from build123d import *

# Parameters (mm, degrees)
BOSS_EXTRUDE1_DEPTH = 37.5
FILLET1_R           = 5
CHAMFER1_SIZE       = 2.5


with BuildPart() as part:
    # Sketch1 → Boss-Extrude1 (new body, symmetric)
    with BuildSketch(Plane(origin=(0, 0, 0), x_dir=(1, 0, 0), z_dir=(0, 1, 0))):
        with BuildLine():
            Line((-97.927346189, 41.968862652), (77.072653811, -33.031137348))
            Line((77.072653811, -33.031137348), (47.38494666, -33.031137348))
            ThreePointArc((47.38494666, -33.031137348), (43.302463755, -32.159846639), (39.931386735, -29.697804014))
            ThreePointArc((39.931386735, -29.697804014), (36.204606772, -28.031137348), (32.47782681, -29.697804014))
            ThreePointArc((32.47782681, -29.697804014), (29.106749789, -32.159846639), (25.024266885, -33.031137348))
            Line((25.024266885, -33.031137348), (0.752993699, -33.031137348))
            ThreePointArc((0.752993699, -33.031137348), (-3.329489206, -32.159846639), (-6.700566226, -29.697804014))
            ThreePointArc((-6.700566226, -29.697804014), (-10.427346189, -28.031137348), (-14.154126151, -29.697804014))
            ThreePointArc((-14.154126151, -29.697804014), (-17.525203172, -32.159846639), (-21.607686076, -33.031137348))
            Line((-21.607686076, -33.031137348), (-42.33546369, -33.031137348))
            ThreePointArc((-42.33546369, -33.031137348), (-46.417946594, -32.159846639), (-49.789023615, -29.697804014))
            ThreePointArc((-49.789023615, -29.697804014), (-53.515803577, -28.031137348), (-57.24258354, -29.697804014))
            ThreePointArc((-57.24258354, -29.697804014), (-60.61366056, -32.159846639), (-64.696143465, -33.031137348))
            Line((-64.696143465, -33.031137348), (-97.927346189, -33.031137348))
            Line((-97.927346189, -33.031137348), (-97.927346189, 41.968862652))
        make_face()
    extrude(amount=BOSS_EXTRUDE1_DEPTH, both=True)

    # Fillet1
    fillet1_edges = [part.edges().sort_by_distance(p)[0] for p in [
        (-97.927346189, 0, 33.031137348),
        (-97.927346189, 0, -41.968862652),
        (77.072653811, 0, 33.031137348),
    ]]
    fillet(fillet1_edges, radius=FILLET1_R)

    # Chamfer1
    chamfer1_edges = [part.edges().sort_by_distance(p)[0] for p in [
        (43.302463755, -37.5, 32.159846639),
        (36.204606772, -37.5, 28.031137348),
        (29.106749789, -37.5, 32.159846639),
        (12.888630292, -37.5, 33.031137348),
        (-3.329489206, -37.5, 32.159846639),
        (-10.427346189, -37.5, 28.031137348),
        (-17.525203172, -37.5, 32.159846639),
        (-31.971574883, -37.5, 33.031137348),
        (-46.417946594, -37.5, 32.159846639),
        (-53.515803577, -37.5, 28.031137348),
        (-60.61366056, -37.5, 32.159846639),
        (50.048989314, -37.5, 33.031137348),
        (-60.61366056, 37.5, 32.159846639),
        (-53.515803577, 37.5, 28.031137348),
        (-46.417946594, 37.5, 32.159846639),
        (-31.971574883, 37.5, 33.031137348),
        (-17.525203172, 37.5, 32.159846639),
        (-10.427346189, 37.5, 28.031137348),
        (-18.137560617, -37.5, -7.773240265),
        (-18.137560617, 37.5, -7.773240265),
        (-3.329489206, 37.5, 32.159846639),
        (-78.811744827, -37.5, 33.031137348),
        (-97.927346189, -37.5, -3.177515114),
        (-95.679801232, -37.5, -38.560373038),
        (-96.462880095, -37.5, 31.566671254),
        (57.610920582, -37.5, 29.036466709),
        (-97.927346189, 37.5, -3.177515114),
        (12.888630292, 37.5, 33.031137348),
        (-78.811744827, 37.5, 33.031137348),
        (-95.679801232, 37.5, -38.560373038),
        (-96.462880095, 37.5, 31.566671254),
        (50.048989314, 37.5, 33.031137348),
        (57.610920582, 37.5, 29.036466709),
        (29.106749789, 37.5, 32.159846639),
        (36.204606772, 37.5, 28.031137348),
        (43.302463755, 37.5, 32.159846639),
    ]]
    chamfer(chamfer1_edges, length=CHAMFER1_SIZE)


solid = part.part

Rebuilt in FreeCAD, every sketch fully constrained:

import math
import FreeCAD as App
import Part
import Sketcher

V = App.Vector
Q = App.Units.Quantity


def edges_at(feature, points):
    """Names of the edges that pass closest to the given points."""
    edges = feature.Shape.Edges
    near = lambda p: min(range(len(edges)), key=lambda i: edges[i].distToShape(Part.Vertex(*p))[0])
    return sorted({f"Edge{near(p) + 1}" for p in points})

doc = App.newDocument("Part")
body = doc.addObject("PartDesign::Body", "Body")

# Sketch on XZ plane
sketch1 = body.newObject("Sketcher::SketchObject", "Sketch")
sketch1.AttachmentSupport = (doc.getObject("XZ_Plane"), [""])
sketch1.MapMode = "FlatFace"
sketch1.addGeometry([
    Part.LineSegment(V(77.072654, 33.031137, 0), V(-97.927346, -41.968863, 0)),  # 0
    Part.LineSegment(V(-97.927346, -41.968863, 0), V(-97.927346, 33.031137, 0)),  # 1
    Part.LineSegment(V(-97.927346, 33.031137, 0), V(-64.696143, 33.031137, 0)),  # 2
    Part.ArcOfCircle(Part.Circle(V(-64.696143, 23.031137, 0), V(0, 0, 1), 10), math.radians(41.810315), math.radians(90)),  # 3
    Part.ArcOfCircle(Part.Circle(V(-53.515804, 33.031137, 0), V(0, 0, 1), 5), math.radians(-138.189685), math.radians(-41.810315)),  # 4
    Part.ArcOfCircle(Part.Circle(V(-42.335464, 23.031137, 0), V(0, 0, 1), 10), math.radians(90), math.radians(138.189685)),  # 5
    Part.LineSegment(V(-42.335464, 33.031137, 0), V(-21.607686, 33.031137, 0)),  # 6
    Part.ArcOfCircle(Part.Circle(V(-21.607686, 23.031137, 0), V(0, 0, 1), 10), math.radians(41.810315), math.radians(90)),  # 7
    Part.ArcOfCircle(Part.Circle(V(-10.427346, 33.031137, 0), V(0, 0, 1), 5), math.radians(-138.189685), math.radians(-41.810315)),  # 8
    Part.ArcOfCircle(Part.Circle(V(0.752994, 23.031137, 0), V(0, 0, 1), 10), math.radians(90), math.radians(138.189685)),  # 9
    Part.LineSegment(V(0.752994, 33.031137, 0), V(25.024267, 33.031137, 0)),  # 10
    Part.ArcOfCircle(Part.Circle(V(25.024267, 23.031137, 0), V(0, 0, 1), 10), math.radians(41.810315), math.radians(90)),  # 11
    Part.ArcOfCircle(Part.Circle(V(36.204607, 33.031137, 0), V(0, 0, 1), 5), math.radians(-138.189685), math.radians(-41.810315)),  # 12
    Part.ArcOfCircle(Part.Circle(V(47.384947, 23.031137, 0), V(0, 0, 1), 10), math.radians(90), math.radians(138.189685)),  # 13
    Part.LineSegment(V(47.384947, 33.031137, 0), V(77.072654, 33.031137, 0)),  # 14
], False)
sketch1.addConstraint([
    Sketcher.Constraint("Coincident", 0, 2, 1, 1),
    Sketcher.Constraint("Coincident", 1, 2, 2, 1),
    Sketcher.Constraint("Tangent", 2, 2, 3, 2),
    Sketcher.Constraint("Tangent", 3, 1, 4, 1),
    Sketcher.Constraint("Tangent", 4, 2, 5, 2),
    Sketcher.Constraint("Tangent", 5, 1, 6, 1),
    Sketcher.Constraint("Tangent", 6, 2, 7, 2),
    Sketcher.Constraint("Tangent", 7, 1, 8, 1),
    Sketcher.Constraint("Tangent", 8, 2, 9, 2),
    Sketcher.Constraint("Tangent", 9, 1, 10, 1),
    Sketcher.Constraint("Tangent", 10, 2, 11, 2),
    Sketcher.Constraint("Tangent", 11, 1, 12, 1),
    Sketcher.Constraint("Tangent", 12, 2, 13, 2),
    Sketcher.Constraint("Tangent", 13, 1, 14, 1),
    Sketcher.Constraint("Coincident", 14, 2, 0, 1),
    Sketcher.Constraint("Vertical", 1),
    Sketcher.Constraint("Horizontal", 2),
    Sketcher.Constraint("Horizontal", 6),
    Sketcher.Constraint("Horizontal", 10),
    Sketcher.Constraint("Horizontal", 14),
    Sketcher.Constraint("Equal", 3, 5),
    Sketcher.Constraint("Equal", 5, 7),
    Sketcher.Constraint("Equal", 4, 8),
    Sketcher.Constraint("Equal", 7, 9),
    Sketcher.Constraint("Equal", 9, 11),
    Sketcher.Constraint("Equal", 8, 12),
    Sketcher.Constraint("Equal", 11, 13),
    Sketcher.Constraint("Horizontal", 3, 3, 5, 3),
    Sketcher.Constraint("Horizontal", 4, 3, 8, 3),
    Sketcher.Constraint("Horizontal", 7, 3, 9, 3),
    Sketcher.Constraint("Horizontal", 8, 3, 12, 3),
    Sketcher.Constraint("Horizontal", 11, 3, 13, 3),
    Sketcher.Constraint("Horizontal", 12, 3, 1, 2),
    Sketcher.Constraint("Radius", 3, Q("10 mm")),
    Sketcher.Constraint("Radius", 4, Q("5 mm")),
    Sketcher.Constraint("DistanceY", 1, 1, 1, 2, Q("75 mm")),
    Sketcher.Constraint("DistanceX", 0, 2, 8, 3, Q("87.5 mm")),
    Sketcher.Constraint("DistanceX", 2, 1, 2, 2, Q("33.231203 mm")),
    Sketcher.Constraint("DistanceX", 10, 1, 10, 2, Q("24.271273 mm")),
    Sketcher.Constraint("DistanceX", 14, 1, 14, 2, Q("29.687707 mm")),
    Sketcher.Constraint("DistanceX", 3, 3, -1, 1, Q("64.696143 mm")),
    Sketcher.Constraint("DistanceY", -1, 1, 3, 3, Q("23.031137 mm")),
])
pad1 = body.newObject("PartDesign::Pad", "Pad")
pad1.Profile = sketch1
pad1.Length = 75
pad1.Midplane = True
doc.recompute()

fillet = body.newObject("PartDesign::Fillet", "Fillet")
fillet.Base = (pad1, edges_at(pad1, [(-97.927, 0, 33.031), (-97.927, 0, -41.969), (77.073, 0, 33.031)]))
fillet.Radius = 5
doc.recompute()

chamfer = body.newObject("PartDesign::Chamfer", "Chamfer")
chamfer.Base = (fillet, edges_at(fillet, [
    (43.302, -37.5, 32.16),
    (36.205, -37.5, 28.031),
    (29.107, -37.5, 32.16),
    (12.889, -37.5, 33.031),
    (-3.329, -37.5, 32.16),
    (-10.427, -37.5, 28.031),
    (-17.525, -37.5, 32.16),
    (-31.972, -37.5, 33.031),
    (-46.418, -37.5, 32.16),
    (-53.516, -37.5, 28.031),
    (-60.614, -37.5, 32.16),
    (50.049, -37.5, 33.031),
    (-60.614, 37.5, 32.16),
    (-53.516, 37.5, 28.031),
    (-46.418, 37.5, 32.16),
    (-31.972, 37.5, 33.031),
    (-17.525, 37.5, 32.16),
    (-10.427, 37.5, 28.031),
    (-18.138, -37.5, -7.773),
    (-18.138, 37.5, -7.773),
    (-3.329, 37.5, 32.16),
    (-78.812, -37.5, 33.031),
    (-97.927, -37.5, -3.178),
    (-95.68, -37.5, -38.56),
    (-96.463, -37.5, 31.567),
    (57.611, -37.5, 29.036),
    (-97.927, 37.5, -3.178),
    (12.889, 37.5, 33.031),
    (-78.812, 37.5, 33.031),
    (-95.68, 37.5, -38.56),
    (-96.463, 37.5, 31.567),
    (50.049, 37.5, 33.031),
    (57.611, 37.5, 29.036),
    (29.107, 37.5, 32.16),
    (36.205, 37.5, 28.031),
    (43.302, 37.5, 32.16),
]))
chamfer.Size = 2.5

doc.recompute()
